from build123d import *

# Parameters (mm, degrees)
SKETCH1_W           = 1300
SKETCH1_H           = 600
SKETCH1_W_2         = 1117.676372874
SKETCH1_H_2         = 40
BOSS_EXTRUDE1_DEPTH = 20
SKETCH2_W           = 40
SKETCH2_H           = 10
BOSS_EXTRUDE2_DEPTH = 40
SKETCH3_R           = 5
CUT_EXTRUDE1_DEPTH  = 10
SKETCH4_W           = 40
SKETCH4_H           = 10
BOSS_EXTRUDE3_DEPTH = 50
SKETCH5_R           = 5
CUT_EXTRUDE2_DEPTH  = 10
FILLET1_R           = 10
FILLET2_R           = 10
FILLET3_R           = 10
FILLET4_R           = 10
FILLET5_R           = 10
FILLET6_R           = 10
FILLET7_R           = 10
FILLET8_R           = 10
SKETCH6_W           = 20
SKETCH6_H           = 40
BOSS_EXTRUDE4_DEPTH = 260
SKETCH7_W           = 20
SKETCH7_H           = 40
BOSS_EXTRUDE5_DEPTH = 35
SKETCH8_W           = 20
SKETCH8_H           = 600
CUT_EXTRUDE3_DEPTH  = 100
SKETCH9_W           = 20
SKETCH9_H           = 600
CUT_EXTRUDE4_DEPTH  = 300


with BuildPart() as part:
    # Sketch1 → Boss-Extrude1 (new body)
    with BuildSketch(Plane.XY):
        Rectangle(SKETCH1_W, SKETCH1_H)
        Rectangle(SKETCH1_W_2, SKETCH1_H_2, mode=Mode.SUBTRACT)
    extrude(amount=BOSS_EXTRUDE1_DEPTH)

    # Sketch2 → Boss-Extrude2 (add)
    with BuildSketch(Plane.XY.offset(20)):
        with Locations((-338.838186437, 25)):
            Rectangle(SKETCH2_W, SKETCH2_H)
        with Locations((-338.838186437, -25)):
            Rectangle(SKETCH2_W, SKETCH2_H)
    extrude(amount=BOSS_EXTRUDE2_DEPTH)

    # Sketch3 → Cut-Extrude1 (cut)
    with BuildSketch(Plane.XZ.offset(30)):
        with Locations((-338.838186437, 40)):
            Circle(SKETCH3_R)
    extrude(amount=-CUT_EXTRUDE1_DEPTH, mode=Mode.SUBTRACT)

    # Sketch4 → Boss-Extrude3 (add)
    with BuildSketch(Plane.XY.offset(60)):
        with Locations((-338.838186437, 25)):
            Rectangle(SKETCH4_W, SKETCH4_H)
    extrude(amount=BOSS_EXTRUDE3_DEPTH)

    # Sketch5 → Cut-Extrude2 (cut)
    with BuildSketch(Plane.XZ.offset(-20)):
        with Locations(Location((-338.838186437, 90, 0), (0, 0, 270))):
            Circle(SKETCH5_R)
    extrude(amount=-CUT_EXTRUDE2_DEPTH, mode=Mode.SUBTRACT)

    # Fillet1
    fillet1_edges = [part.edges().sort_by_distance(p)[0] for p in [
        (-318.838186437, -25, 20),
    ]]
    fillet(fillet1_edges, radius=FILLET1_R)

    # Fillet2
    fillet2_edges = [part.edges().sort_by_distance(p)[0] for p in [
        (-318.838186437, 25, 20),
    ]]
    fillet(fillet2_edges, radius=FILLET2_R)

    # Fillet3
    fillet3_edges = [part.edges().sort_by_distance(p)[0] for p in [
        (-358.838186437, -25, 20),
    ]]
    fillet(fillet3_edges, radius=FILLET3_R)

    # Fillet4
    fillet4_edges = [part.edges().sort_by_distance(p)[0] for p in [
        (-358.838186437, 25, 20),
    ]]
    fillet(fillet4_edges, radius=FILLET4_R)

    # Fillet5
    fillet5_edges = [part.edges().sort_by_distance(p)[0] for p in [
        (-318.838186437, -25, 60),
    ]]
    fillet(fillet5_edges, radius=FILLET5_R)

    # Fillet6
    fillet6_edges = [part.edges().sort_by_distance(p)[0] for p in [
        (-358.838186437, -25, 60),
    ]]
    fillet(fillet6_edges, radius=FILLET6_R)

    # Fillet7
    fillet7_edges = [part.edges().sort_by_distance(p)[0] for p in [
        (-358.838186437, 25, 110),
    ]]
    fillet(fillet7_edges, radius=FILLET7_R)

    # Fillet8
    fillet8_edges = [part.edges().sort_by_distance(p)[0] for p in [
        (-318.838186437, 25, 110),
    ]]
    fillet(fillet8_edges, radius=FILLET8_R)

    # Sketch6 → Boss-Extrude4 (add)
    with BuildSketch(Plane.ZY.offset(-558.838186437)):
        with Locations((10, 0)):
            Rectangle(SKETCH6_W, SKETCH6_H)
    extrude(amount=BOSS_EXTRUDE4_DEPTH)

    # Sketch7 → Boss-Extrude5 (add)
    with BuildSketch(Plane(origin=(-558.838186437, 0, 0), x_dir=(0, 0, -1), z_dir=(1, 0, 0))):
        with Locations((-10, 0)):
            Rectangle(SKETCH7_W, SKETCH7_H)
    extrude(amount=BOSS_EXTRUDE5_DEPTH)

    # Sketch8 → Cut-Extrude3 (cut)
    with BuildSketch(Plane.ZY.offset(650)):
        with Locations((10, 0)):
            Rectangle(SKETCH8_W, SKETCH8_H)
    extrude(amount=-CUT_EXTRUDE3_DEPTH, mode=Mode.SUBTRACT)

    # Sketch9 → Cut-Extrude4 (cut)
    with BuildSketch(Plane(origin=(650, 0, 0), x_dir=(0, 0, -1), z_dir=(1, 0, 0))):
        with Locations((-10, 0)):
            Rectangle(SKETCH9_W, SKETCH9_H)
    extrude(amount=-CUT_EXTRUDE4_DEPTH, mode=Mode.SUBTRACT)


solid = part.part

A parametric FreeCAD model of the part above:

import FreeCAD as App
import Part
import Sketcher
from FreeCAD import Vector


def edges_at(feature, points):
    """Names of the edges that pass closest to the given points."""
    edges = feature.Shape.Edges
    near = lambda p: min(range(len(edges)), key=lambda i: edges[i].distToShape(Part.Vertex(*p))[0])
    return sorted({f"Edge{near(p) + 1}" for p in points})

doc = App.newDocument("Part")
params = doc.addObject("Spreadsheet::Sheet", "Params")
for row, (alias, value) in enumerate([
    ("sketch1_width", "1300 mm"),
    ("sketch1_height", "600 mm"),
    ("sketch1_height2", "40 mm"),
    ("pad1_length", "20 mm"),
    ("sketch2_width", "40 mm"),
    ("sketch2_height", "10 mm"),
    ("pad2_length", "40 mm"),
    ("sketch3_diameter", "10 mm"),
    ("pocket1_length", "10 mm"),
    ("sketch4_width", "40 mm"),
    ("sketch4_height", "10 mm"),
    ("pad3_length", "50 mm"),
    ("sketch5_diameter", "10 mm"),
    ("pocket2_length", "10 mm"),
    ("fillet_radius", "10 mm"),
    ("fillet2_radius", "10 mm"),
    ("fillet3_radius", "10 mm"),
    ("fillet4_radius", "10 mm"),
    ("fillet5_radius", "10 mm"),
    ("fillet6_radius", "10 mm"),
    ("fillet7_radius", "10 mm"),
    ("fillet8_radius", "10 mm"),
    ("sketch6_width", "40 mm"),
    ("sketch6_height", "20 mm"),
    ("pad4_length", "260 mm"),
    ("sketch7_width", "40 mm"),
    ("sketch7_height", "20 mm"),
    ("pad5_length", "35 mm"),
    ("sketch8_width", "600 mm"),
    ("sketch8_height", "20 mm"),
    ("pocket3_length", "100 mm"),
    ("sketch9_width", "600 mm"),
    ("sketch9_height", "20 mm"),
    ("pocket4_length", "300 mm"),
], start=1):
    params.set(f"A{row}", alias)
    params.set(f"B{row}", "=" + value)
    params.setAlias(f"B{row}", alias)

body = doc.addObject("PartDesign::Body", "Body")

# Sketch on XY plane
sketch1 = body.newObject("Sketcher::SketchObject", "Sketch")
sketch1.AttachmentSupport = (doc.getObject("XY_Plane"), [""])
sketch1.MapMode = "FlatFace"
sketch1.addGeometry(Part.LineSegment(Vector(-650, 300, 0), Vector(-650, -300, 0)), False)
sketch1.addGeometry(Part.LineSegment(Vector(-650, -300, 0), Vector(650, -300, 0)), False)
sketch1.addGeometry(Part.LineSegment(Vector(650, -300, 0), Vector(650, 300, 0)), False)
sketch1.addGeometry(Part.LineSegment(Vector(650, 300, 0), Vector(-650, 300, 0)), False)
sketch1.addGeometry(Part.LineSegment(Vector(559, -20, 0), Vector(-559, -20, 0)), False)
sketch1.addGeometry(Part.LineSegment(Vector(-559, -20, 0), Vector(-559, 20, 0)), False)
sketch1.addGeometry(Part.LineSegment(Vector(-559, 20, 0), Vector(559, 20, 0)), False)
sketch1.addGeometry(Part.LineSegment(Vector(559, 20, 0), Vector(559, -20, 0)), False)
sketch1.addConstraint(Sketcher.Constraint("Coincident", 0, 2, 1, 1))
sketch1.addConstraint(Sketcher.Constraint("Coincident", 1, 2, 2, 1))
sketch1.addConstraint(Sketcher.Constraint("Coincident", 2, 2, 3, 1))
sketch1.addConstraint(Sketcher.Constraint("Coincident", 3, 2, 0, 1))
sketch1.addConstraint(Sketcher.Constraint("Coincident", 4, 2, 5, 1))
sketch1.addConstraint(Sketcher.Constraint("Coincident", 5, 2, 6, 1))
sketch1.addConstraint(Sketcher.Constraint("Coincident", 6, 2, 7, 1))
sketch1.addConstraint(Sketcher.Constraint("Coincident", 7, 2, 4, 1))
sketch1.addConstraint(Sketcher.Constraint("Vertical", 0))
sketch1.addConstraint(Sketcher.Constraint("Horizontal", 1))
sketch1.addConstraint(Sketcher.Constraint("Vertical", 2))
sketch1.addConstraint(Sketcher.Constraint("Horizontal", 3))
sketch1.addConstraint(Sketcher.Constraint("Horizontal", 4))
sketch1.addConstraint(Sketcher.Constraint("Vertical", 5))
sketch1.addConstraint(Sketcher.Constraint("Horizontal", 6))
sketch1.addConstraint(Sketcher.Constraint("Vertical", 7))
sketch1.addConstraint(Sketcher.Constraint("Symmetric", 0, 2, 2, 2, -1, 1))
sketch1.addConstraint(Sketcher.Constraint("Symmetric", 4, 2, 6, 2, -1, 1))
sketch1.addConstraint(Sketcher.Constraint("DistanceX", 1, 1, 1, 2, 1300.0))
sketch1.addConstraint(Sketcher.Constraint("DistanceY", 0, 2, 0, 1, 600.0))
sketch1.addConstraint(Sketcher.Constraint("DistanceY", 5, 1, 5, 2, 40.0))
sketch1.addConstraint(Sketcher.Constraint("DistanceX", 4, 2, 4, 1, 1117.676373))
sketch1.setExpression("Constraints[18]", "Params.sketch1_width")
sketch1.setExpression("Constraints[19]", "Params.sketch1_height")
sketch1.setExpression("Constraints[20]", "Params.sketch1_height2")
pad1 = body.newObject("PartDesign::Pad", "Pad")
pad1.Profile = sketch1
pad1.setExpression("Length", "Params.pad1_length")

# Sketch on XY plane
sketch2 = body.newObject("Sketcher::SketchObject", "Sketch001")
sketch2.AttachmentSupport = (doc.getObject("XY_Plane"), [""])
sketch2.MapMode = "FlatFace"
sketch2.AttachmentOffset = App.Placement(Vector(0, 0, 20), App.Rotation())
sketch2.addGeometry(Part.LineSegment(Vector(-359, 30, 0), Vector(-359, 20, 0)), False)
sketch2.addGeometry(Part.LineSegment(Vector(-359, 20, 0), Vector(-319, 20, 0)), False)
sketch2.addGeometry(Part.LineSegment(Vector(-319, 20, 0), Vector(-319, 30, 0)), False)
sketch2.addGeometry(Part.LineSegment(Vector(-319, 30, 0), Vector(-359, 30, 0)), False)
sketch2.addGeometry(Part.LineSegment(Vector(-359, -20, 0), Vector(-359, -30, 0)), False)
sketch2.addGeometry(Part.LineSegment(Vector(-359, -30, 0), Vector(-319, -30, 0)), False)
sketch2.addGeometry(Part.LineSegment(Vector(-319, -30, 0), Vector(-319, -20, 0)), False)
sketch2.addGeometry(Part.LineSegment(Vector(-319, -20, 0), Vector(-359, -20, 0)), False)
sketch2.addConstraint(Sketcher.Constraint("Coincident", 0, 2, 1, 1))
sketch2.addConstraint(Sketcher.Constraint("Coincident", 1, 2, 2, 1))
sketch2.addConstraint(Sketcher.Constraint("Coincident", 2, 2, 3, 1))
sketch2.addConstraint(Sketcher.Constraint("Coincident", 3, 2, 0, 1))
sketch2.addConstraint(Sketcher.Constraint("Coincident", 4, 2, 5, 1))
sketch2.addConstraint(Sketcher.Constraint("Coincident", 5, 2, 6, 1))
sketch2.addConstraint(Sketcher.Constraint("Coincident", 6, 2, 7, 1))
sketch2.addConstraint(Sketcher.Constraint("Coincident", 7, 2, 4, 1))
sketch2.addConstraint(Sketcher.Constraint("Vertical", 0))
sketch2.addConstraint(Sketcher.Constraint("Horizontal", 1))
sketch2.addConstraint(Sketcher.Constraint("Vertical", 2))
sketch2.addConstraint(Sketcher.Constraint("Horizontal", 3))
sketch2.addConstraint(Sketcher.Constraint("Vertical", 4))
sketch2.addConstraint(Sketcher.Constraint("Horizontal", 5))
sketch2.addConstraint(Sketcher.Constraint("Vertical", 6))
sketch2.addConstraint(Sketcher.Constraint("Horizontal", 7))
sketch2.addConstraint(Sketcher.Constraint("Symmetric", 3, 2, 4, 2, -1))
sketch2.addConstraint(Sketcher.Constraint("Symmetric", 1, 2, 6, 2, -1))
sketch2.addConstraint(Sketcher.Constraint("DistanceX", 1, 1, 1, 2, 40.0))
sketch2.addConstraint(Sketcher.Constraint("DistanceY", 0, 2, 0, 1, 10.0))
sketch2.addConstraint(Sketcher.Constraint("DistanceY", -1, 1, 0, 2, 20.0))
sketch2.addConstraint(Sketcher.Constraint("DistanceX", 0, 2, -1, 1, 358.838186))
sketch2.setExpression("Constraints[18]", "Params.sketch2_width")
sketch2.setExpression("Constraints[19]", "Params.sketch2_height")
pad2 = body.newObject("PartDesign::Pad", "Pad001")
pad2.Profile = sketch2
pad2.setExpression("Length", "Params.pad2_length")

# Sketch on XZ plane
sketch3 = body.newObject("Sketcher::SketchObject", "Sketch002")
sketch3.AttachmentSupport = (doc.getObject("XZ_Plane"), [""])
sketch3.MapMode = "FlatFace"
sketch3.AttachmentOffset = App.Placement(Vector(0, 0, 30), App.Rotation())
sketch3.addGeometry(Part.Circle(Vector(-339, 40, 0), Vector(0, 0, 1), 5), False)
sketch3.addConstraint(Sketcher.Constraint("Diameter", 0, 10.0))
sketch3.addConstraint(Sketcher.Constraint("DistanceY", -1, 1, 0, 3, 40.0))
sketch3.addConstraint(Sketcher.Constraint("DistanceX", 0, 3, -1, 1, 338.838186))
sketch3.setExpression("Constraints[0]", "Params.sketch3_diameter")
pocket1 = body.newObject("PartDesign::Pocket", "Pocket")
pocket1.Profile = sketch3
pocket1.setExpression("Length", "Params.pocket1_length")

# Sketch on XY plane
sketch4 = body.newObject("Sketcher::SketchObject", "Sketch003")
sketch4.AttachmentSupport = (doc.getObject("XY_Plane"), [""])
sketch4.MapMode = "FlatFace"
sketch4.AttachmentOffset = App.Placement(Vector(0, 0, 60), App.Rotation())
sketch4.addGeometry(Part.LineSegment(Vector(-359, 30, 0), Vector(-359, 20, 0)), False)
sketch4.addGeometry(Part.LineSegment(Vector(-359, 20, 0), Vector(-319, 20, 0)), False)
sketch4.addGeometry(Part.LineSegment(Vector(-319, 20, 0), Vector(-319, 30, 0)), False)
sketch4.addGeometry(Part.LineSegment(Vector(-319, 30, 0), Vector(-359, 30, 0)), False)
sketch4.addConstraint(Sketcher.Constraint("Coincident", 0, 2, 1, 1))
sketch4.addConstraint(Sketcher.Constraint("Coincident", 1, 2, 2, 1))
sketch4.addConstraint(Sketcher.Constraint("Coincident", 2, 2, 3, 1))
sketch4.addConstraint(Sketcher.Constraint("Coincident", 3, 2, 0, 1))
sketch4.addConstraint(Sketcher.Constraint("Vertical", 0))
sketch4.addConstraint(Sketcher.Constraint("Horizontal", 1))
sketch4.addConstraint(Sketcher.Constraint("Vertical", 2))
sketch4.addConstraint(Sketcher.Constraint("Horizontal", 3))
sketch4.addConstraint(Sketcher.Constraint("DistanceX", 1, 1, 1, 2, 40.0))
sketch4.addConstraint(Sketcher.Constraint("DistanceY", 0, 2, 0, 1, 10.0))
sketch4.addConstraint(Sketcher.Constraint("DistanceY", -1, 1, 0, 2, 20.0))
sketch4.addConstraint(Sketcher.Constraint("DistanceX", 0, 2, -1, 1, 358.838186))
sketch4.setExpression("Constraints[8]", "Params.sketch4_width")
sketch4.setExpression("Constraints[9]", "Params.sketch4_height")
pad3 = body.newObject("PartDesign::Pad", "Pad002")
pad3.Profile = sketch4
pad3.setExpression("Length", "Params.pad3_length")

# Sketch on XZ plane
sketch5 = body.newObject("Sketcher::SketchObject", "Sketch004")
sketch5.AttachmentSupport = (doc.getObject("XZ_Plane"), [""])
sketch5.MapMode = "FlatFace"
sketch5.AttachmentOffset = App.Placement(Vector(0, 0, -20), App.Rotation())
sketch5.addGeometry(Part.Circle(Vector(-339, 90, 0), Vector(0, 0, 1), 5), False)
sketch5.addConstraint(Sketcher.Constraint("Diameter", 0, 10.0))
sketch5.addConstraint(Sketcher.Constraint("DistanceY", -1, 1, 0, 3, 90.0))
sketch5.addConstraint(Sketcher.Constraint("DistanceX", 0, 3, -1, 1, 338.838186))
sketch5.setExpression("Constraints[0]", "Params.sketch5_diameter")
pocket2 = body.newObject("PartDesign::Pocket", "Pocket001")
pocket2.Profile = sketch5
pocket2.setExpression("Length", "Params.pocket2_length")
doc.recompute()

fillet = body.newObject("PartDesign::Fillet", "Fillet")
fillet.Base = (pocket2, edges_at(pocket2, [(-318.838, -25, 20)]))
fillet.setExpression("Radius", "Params.fillet_radius")
doc.recompute()

fillet2 = body.newObject("PartDesign::Fillet", "Fillet001")
fillet2.Base = (fillet, edges_at(fillet, [(-318.838, 25, 20)]))
fillet2.setExpression("Radius", "Params.fillet2_radius")
doc.recompute()

fillet3 = body.newObject("PartDesign::Fillet", "Fillet002")
fillet3.Base = (fillet2, edges_at(fillet2, [(-358.838, -25, 20)]))
fillet3.setExpression("Radius", "Params.fillet3_radius")
doc.recompute()

fillet4 = body.newObject("PartDesign::Fillet", "Fillet003")
fillet4.Base = (fillet3, edges_at(fillet3, [(-358.838, 25, 20)]))
fillet4.setExpression("Radius", "Params.fillet4_radius")
doc.recompute()

fillet5 = body.newObject("PartDesign::Fillet", "Fillet004")
fillet5.Base = (fillet4, edges_at(fillet4, [(-318.838, -25, 60)]))
fillet5.setExpression("Radius", "Params.fillet5_radius")
doc.recompute()

fillet6 = body.newObject("PartDesign::Fillet", "Fillet005")
fillet6.Base = (fillet5, edges_at(fillet5, [(-358.838, -25, 60)]))
fillet6.setExpression("Radius", "Params.fillet6_radius")
doc.recompute()

fillet7 = body.newObject("PartDesign::Fillet", "Fillet006")
fillet7.Base = (fillet6, edges_at(fillet6, [(-358.838, 25, 110)]))
fillet7.setExpression("Radius", "Params.fillet7_radius")
doc.recompute()

fillet8 = body.newObject("PartDesign::Fillet", "Fillet007")
fillet8.Base = (fillet7, edges_at(fillet7, [(-318.838, 25, 110)]))
fillet8.setExpression("Radius", "Params.fillet8_radius")

# Sketch on YZ plane
sketch6 = body.newObject("Sketcher::SketchObject", "Sketch005")
sketch6.AttachmentSupport = (doc.getObject("YZ_Plane"), [""])
sketch6.MapMode = "FlatFace"
sketch6.AttachmentOffset = App.Placement(Vector(0, 0, 558.838186), App.Rotation())
sketch6.addGeometry(Part.LineSegment(Vector(20, 0, 0), Vector(-20, 0, 0)), False)
sketch6.addGeometry(Part.LineSegment(Vector(-20, 0, 0), Vector(-20, 20, 0)), False)
sketch6.addGeometry(Part.LineSegment(Vector(-20, 20, 0), Vector(20, 20, 0)), False)
sketch6.addGeometry(Part.LineSegment(Vector(20, 20, 0), Vector(20, 0, 0)), False)
sketch6.addConstraint(Sketcher.Constraint("Coincident", 0, 2, 1, 1))
sketch6.addConstraint(Sketcher.Constraint("Coincident", 1, 2, 2, 1))
sketch6.addConstraint(Sketcher.Constraint("Coincident", 2, 2, 3, 1))
sketch6.addConstraint(Sketcher.Constraint("Coincident", 3, 2, 0, 1))
sketch6.addConstraint(Sketcher.Constraint("Horizontal", 0))
sketch6.addConstraint(Sketcher.Constraint("Vertical", 1))
sketch6.addConstraint(Sketcher.Constraint("Horizontal", 2))
sketch6.addConstraint(Sketcher.Constraint("Vertical", 3))
sketch6.addConstraint(Sketcher.Constraint("Symmetric", 0, 2, 3, 2, -1, 1))
sketch6.addConstraint(Sketcher.Constraint("DistanceX", 0, 2, 0, 1, 40.0))
sketch6.addConstraint(Sketcher.Constraint("DistanceY", 1, 1, 1, 2, 20.0))
sketch6.setExpression("Constraints[9]", "Params.sketch6_width")
sketch6.setExpression("Constraints[10]", "Params.sketch6_height")
pad4 = body.newObject("PartDesign::Pad", "Pad003")
pad4.Profile = sketch6
pad4.setExpression("Length", "Params.pad4_length")
pad4.Reversed = True

# Sketch on YZ plane
sketch7 = body.newObject("Sketcher::SketchObject", "Sketch006")
sketch7.AttachmentSupport = (doc.getObject("YZ_Plane"), [""])
sketch7.MapMode = "FlatFace"
sketch7.AttachmentOffset = App.Placement(Vector(0, 0, -558.838186), App.Rotation())
sketch7.addGeometry(Part.LineSegment(Vector(20, 20, 0), Vector(-20, 20, 0)), False)
sketch7.addGeometry(Part.LineSegment(Vector(-20, 20, 0), Vector(-20, 0, 0)), False)
sketch7.addGeometry(Part.LineSegment(Vector(-20, 0, 0), Vector(20, 0, 0)), False)
sketch7.addGeometry(Part.LineSegment(Vector(20, 0, 0), Vector(20, 20, 0)), False)
sketch7.addConstraint(Sketcher.Constraint("Coincident", 0, 2, 1, 1))
sketch7.addConstraint(Sketcher.Constraint("Coincident", 1, 2, 2, 1))
sketch7.addConstraint(Sketcher.Constraint("Coincident", 2, 2, 3, 1))
sketch7.addConstraint(Sketcher.Constraint("Coincident", 3, 2, 0, 1))
sketch7.addConstraint(Sketcher.Constraint("Horizontal", 0))
sketch7.addConstraint(Sketcher.Constraint("Vertical", 1))
sketch7.addConstraint(Sketcher.Constraint("Horizontal", 2))
sketch7.addConstraint(Sketcher.Constraint("Vertical", 3))
sketch7.addConstraint(Sketcher.Constraint("Symmetric", 1, 2, 2, 2, -1, 1))
sketch7.addConstraint(Sketcher.Constraint("DistanceX", 0, 2, 0, 1, 40.0))
sketch7.addConstraint(Sketcher.Constraint("DistanceY", 1, 2, 1, 1, 20.0))
sketch7.setExpression("Constraints[9]", "Params.sketch7_width")
sketch7.setExpression("Constraints[10]", "Params.sketch7_height")
pad5 = body.newObject("PartDesign::Pad", "Pad004")
pad5.Profile = sketch7
pad5.setExpression("Length", "Params.pad5_length")

# Sketch on YZ plane
sketch8 = body.newObject("Sketcher::SketchObject", "Sketch007")
sketch8.AttachmentSupport = (doc.getObject("YZ_Plane"), [""])
sketch8.MapMode = "FlatFace"
sketch8.AttachmentOffset = App.Placement(Vector(0, 0, -650), App.Rotation())
sketch8.addGeometry(Part.LineSegment(Vector(300, 0, 0), Vector(-300, 0, 0)), False)
sketch8.addGeometry(Part.LineSegment(Vector(-300, 0, 0), Vector(-300, 20, 0)), False)
sketch8.addGeometry(Part.LineSegment(Vector(-300, 20, 0), Vector(300, 20, 0)), False)
sketch8.addGeometry(Part.LineSegment(Vector(300, 20, 0), Vector(300, 0, 0)), False)
sketch8.addConstraint(Sketcher.Constraint("Coincident", 0, 2, 1, 1))
sketch8.addConstraint(Sketcher.Constraint("Coincident", 1, 2, 2, 1))
sketch8.addConstraint(Sketcher.Constraint("Coincident", 2, 2, 3, 1))
sketch8.addConstraint(Sketcher.Constraint("Coincident", 3, 2, 0, 1))
sketch8.addConstraint(Sketcher.Constraint("Horizontal", 0))
sketch8.addConstraint(Sketcher.Constraint("Vertical", 1))
sketch8.addConstraint(Sketcher.Constraint("Horizontal", 2))
sketch8.addConstraint(Sketcher.Constraint("Vertical", 3))
sketch8.addConstraint(Sketcher.Constraint("Symmetric", 0, 2, 3, 2, -1, 1))
sketch8.addConstraint(Sketcher.Constraint("DistanceX", 0, 2, 0, 1, 600.0))
sketch8.addConstraint(Sketcher.Constraint("DistanceY", 1, 1, 1, 2, 20.0))
sketch8.setExpression("Constraints[9]", "Params.sketch8_width")
sketch8.setExpression("Constraints[10]", "Params.sketch8_height")
pocket3 = body.newObject("PartDesign::Pocket", "Pocket002")
pocket3.Profile = sketch8
pocket3.setExpression("Length", "Params.pocket3_length")
pocket3.Reversed = True

# Sketch on YZ plane
sketch9 = body.newObject("Sketcher::SketchObject", "Sketch008")
sketch9.AttachmentSupport = (doc.getObject("YZ_Plane"), [""])
sketch9.MapMode = "FlatFace"
sketch9.AttachmentOffset = App.Placement(Vector(0, 0, 650), App.Rotation())
sketch9.addGeometry(Part.LineSegment(Vector(300, 20, 0), Vector(-300, 20, 0)), False)
sketch9.addGeometry(Part.LineSegment(Vector(-300, 20, 0), Vector(-300, 0, 0)), False)
sketch9.addGeometry(Part.LineSegment(Vector(-300, 0, 0), Vector(300, 0, 0)), False)
sketch9.addGeometry(Part.LineSegment(Vector(300, 0, 0), Vector(300, 20, 0)), False)
sketch9.addConstraint(Sketcher.Constraint("Coincident", 0, 2, 1, 1))
sketch9.addConstraint(Sketcher.Constraint("Coincident", 1, 2, 2, 1))
sketch9.addConstraint(Sketcher.Constraint("Coincident", 2, 2, 3, 1))
sketch9.addConstraint(Sketcher.Constraint("Coincident", 3, 2, 0, 1))
sketch9.addConstraint(Sketcher.Constraint("Horizontal", 0))
sketch9.addConstraint(Sketcher.Constraint("Vertical", 1))
sketch9.addConstraint(Sketcher.Constraint("Horizontal", 2))
sketch9.addConstraint(Sketcher.Constraint("Vertical", 3))
sketch9.addConstraint(Sketcher.Constraint("Symmetric", 1, 2, 2, 2, -1, 1))
sketch9.addConstraint(Sketcher.Constraint("DistanceX", 0, 2, 0, 1, 600.0))
sketch9.addConstraint(Sketcher.Constraint("DistanceY", 1, 2, 1, 1, 20.0))
sketch9.setExpression("Constraints[9]", "Params.sketch9_width")
sketch9.setExpression("Constraints[10]", "Params.sketch9_height")
pocket4 = body.newObject("PartDesign::Pocket", "Pocket003")
pocket4.Profile = sketch9
pocket4.setExpression("Length", "Params.pocket4_length")

doc.recompute()
